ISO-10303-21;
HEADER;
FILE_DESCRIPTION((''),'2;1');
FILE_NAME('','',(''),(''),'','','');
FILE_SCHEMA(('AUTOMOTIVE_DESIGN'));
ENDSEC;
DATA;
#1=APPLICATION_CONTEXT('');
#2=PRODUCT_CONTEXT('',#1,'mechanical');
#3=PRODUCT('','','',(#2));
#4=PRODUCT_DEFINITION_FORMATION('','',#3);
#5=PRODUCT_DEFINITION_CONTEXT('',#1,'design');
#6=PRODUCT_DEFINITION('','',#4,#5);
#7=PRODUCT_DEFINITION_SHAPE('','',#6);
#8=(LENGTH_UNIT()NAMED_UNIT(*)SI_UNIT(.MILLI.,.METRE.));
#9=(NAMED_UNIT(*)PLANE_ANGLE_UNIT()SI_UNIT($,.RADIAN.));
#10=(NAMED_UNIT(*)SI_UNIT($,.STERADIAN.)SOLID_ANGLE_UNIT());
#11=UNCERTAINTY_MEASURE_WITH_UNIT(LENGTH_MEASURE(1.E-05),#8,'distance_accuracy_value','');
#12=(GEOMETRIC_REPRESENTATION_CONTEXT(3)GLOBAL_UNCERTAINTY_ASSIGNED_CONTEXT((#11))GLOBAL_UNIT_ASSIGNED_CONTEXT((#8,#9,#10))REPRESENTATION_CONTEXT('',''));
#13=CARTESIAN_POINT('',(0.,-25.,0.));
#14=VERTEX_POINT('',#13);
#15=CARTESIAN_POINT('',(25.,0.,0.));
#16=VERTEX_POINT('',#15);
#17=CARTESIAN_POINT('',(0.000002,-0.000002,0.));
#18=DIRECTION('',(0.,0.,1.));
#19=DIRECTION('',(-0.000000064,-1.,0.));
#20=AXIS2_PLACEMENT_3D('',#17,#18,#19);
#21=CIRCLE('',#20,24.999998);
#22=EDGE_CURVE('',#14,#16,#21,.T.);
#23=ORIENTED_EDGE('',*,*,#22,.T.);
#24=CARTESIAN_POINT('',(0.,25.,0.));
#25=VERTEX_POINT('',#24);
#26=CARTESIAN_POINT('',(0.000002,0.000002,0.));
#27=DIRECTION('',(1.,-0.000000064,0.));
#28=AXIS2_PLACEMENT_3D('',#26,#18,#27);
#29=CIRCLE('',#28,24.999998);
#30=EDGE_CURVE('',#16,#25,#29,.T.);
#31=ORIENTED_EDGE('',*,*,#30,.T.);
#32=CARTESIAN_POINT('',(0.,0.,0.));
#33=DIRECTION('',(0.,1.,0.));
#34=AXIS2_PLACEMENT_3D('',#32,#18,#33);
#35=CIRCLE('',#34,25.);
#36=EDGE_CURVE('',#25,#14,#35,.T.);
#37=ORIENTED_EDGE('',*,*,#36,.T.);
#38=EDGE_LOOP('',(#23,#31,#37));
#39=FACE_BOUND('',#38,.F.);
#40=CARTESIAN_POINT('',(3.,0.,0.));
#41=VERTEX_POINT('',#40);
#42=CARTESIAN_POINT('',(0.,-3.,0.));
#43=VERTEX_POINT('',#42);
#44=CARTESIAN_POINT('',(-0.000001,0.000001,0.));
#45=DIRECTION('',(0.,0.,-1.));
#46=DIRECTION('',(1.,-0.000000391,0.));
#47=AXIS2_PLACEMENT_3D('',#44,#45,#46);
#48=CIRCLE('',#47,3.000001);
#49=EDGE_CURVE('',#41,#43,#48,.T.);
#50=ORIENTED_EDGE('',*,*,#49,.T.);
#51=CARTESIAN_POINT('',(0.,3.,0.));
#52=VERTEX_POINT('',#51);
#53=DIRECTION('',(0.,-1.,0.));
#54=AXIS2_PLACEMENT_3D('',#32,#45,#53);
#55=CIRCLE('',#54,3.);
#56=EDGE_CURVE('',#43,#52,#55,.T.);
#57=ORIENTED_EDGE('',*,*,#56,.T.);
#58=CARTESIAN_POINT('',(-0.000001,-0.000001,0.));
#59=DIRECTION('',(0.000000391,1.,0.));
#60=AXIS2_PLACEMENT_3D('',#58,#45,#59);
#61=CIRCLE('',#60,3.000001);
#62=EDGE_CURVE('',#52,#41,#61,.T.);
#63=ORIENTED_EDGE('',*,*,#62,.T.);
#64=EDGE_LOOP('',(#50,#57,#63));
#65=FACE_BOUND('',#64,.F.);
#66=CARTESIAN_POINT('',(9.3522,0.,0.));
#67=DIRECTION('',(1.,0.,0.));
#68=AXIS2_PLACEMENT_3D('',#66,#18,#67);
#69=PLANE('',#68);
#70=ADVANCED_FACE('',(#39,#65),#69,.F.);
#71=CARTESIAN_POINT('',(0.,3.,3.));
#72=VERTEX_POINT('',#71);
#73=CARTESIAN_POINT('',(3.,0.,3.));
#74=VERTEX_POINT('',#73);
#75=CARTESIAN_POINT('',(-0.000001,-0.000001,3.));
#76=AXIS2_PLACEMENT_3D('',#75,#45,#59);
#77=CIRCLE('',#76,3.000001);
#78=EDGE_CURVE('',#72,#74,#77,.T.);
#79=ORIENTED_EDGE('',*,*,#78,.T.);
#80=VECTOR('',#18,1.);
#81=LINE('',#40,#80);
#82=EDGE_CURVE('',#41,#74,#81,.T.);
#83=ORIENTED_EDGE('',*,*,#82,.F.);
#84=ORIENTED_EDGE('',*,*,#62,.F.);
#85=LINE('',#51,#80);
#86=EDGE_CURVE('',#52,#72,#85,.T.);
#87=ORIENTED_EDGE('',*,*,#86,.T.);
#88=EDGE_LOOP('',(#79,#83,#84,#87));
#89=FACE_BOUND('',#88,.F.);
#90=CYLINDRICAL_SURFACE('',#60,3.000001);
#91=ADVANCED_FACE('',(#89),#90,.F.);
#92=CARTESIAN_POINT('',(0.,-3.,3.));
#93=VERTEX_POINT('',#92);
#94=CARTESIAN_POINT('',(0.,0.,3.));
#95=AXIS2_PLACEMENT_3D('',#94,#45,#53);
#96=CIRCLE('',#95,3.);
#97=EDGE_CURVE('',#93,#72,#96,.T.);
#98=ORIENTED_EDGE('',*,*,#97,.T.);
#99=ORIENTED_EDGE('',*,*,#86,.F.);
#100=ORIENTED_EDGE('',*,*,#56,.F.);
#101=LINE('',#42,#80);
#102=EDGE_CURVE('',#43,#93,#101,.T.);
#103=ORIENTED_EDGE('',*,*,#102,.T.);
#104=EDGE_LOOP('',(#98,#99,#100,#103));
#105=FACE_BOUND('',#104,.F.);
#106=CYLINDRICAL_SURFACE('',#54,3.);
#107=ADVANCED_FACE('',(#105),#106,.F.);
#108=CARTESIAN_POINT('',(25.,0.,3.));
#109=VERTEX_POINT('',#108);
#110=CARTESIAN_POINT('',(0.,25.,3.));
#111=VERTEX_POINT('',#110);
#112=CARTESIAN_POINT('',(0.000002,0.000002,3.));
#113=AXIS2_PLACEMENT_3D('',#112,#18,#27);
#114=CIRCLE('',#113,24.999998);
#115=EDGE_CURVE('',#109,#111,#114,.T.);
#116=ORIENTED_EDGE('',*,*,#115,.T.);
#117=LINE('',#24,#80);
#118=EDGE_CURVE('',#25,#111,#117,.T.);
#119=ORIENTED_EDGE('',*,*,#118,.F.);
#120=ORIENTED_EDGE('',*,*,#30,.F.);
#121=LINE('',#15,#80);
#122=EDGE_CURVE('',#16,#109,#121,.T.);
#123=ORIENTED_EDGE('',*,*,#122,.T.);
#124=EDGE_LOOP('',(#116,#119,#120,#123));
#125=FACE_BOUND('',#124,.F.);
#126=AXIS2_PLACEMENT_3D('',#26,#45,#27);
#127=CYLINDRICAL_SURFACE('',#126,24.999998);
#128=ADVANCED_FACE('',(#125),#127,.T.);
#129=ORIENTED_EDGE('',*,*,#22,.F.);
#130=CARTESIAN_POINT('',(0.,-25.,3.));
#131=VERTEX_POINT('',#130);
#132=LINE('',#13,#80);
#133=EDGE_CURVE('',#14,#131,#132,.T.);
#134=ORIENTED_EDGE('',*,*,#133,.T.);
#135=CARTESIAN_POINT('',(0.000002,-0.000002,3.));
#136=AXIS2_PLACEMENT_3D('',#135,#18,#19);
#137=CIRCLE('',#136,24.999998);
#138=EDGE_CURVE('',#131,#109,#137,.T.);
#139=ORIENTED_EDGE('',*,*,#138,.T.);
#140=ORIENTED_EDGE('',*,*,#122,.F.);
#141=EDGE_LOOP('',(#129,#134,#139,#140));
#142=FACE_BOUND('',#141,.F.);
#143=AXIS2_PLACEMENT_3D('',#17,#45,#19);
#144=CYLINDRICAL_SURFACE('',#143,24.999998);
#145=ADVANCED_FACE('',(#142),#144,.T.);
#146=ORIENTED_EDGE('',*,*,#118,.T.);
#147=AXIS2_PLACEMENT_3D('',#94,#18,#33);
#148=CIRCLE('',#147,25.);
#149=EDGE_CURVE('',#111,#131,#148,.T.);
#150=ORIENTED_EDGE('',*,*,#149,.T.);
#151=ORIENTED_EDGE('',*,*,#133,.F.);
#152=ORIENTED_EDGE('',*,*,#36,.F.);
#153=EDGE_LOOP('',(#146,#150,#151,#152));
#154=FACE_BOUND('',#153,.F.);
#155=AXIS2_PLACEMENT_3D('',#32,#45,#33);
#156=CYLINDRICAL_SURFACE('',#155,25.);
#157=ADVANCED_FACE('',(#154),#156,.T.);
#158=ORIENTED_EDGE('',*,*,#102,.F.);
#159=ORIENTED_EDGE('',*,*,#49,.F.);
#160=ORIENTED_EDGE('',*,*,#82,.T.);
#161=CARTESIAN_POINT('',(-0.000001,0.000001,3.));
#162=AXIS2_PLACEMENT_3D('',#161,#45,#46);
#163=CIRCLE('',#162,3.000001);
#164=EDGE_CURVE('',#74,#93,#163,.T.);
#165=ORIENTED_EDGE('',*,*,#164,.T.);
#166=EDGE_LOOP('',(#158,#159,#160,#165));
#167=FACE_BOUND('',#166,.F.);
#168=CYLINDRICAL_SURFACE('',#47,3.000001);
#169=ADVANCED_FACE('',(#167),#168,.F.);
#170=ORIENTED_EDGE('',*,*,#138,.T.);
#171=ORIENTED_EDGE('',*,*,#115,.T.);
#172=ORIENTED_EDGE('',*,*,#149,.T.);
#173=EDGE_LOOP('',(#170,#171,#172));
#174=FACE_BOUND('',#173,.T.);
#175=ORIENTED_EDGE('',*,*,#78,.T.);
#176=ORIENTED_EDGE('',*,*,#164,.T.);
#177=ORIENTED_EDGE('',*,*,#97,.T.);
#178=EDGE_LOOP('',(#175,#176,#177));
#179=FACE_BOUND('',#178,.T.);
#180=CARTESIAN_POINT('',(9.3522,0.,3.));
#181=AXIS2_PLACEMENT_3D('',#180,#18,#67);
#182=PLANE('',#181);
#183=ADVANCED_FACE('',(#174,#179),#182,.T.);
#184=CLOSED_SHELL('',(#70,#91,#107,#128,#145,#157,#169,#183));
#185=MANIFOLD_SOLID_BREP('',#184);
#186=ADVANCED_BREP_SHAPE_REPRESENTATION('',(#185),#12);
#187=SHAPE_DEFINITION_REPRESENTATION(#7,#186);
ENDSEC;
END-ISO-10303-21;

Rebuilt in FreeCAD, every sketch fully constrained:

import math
import FreeCAD as App
import Part
import Sketcher

V = App.Vector
Q = App.Units.Quantity

doc = App.newDocument("Part")
body = doc.addObject("PartDesign::Body", "Body")

# Sketch on XY plane
sketch1 = body.newObject("Sketcher::SketchObject", "Sketch")
sketch1.AttachmentSupport = (doc.getObject("XY_Plane"), [""])
sketch1.MapMode = "FlatFace"
sketch1.addGeometry([
    Part.ArcOfCircle(Part.Circle(V(0.000002, 0.000002, 0), V(0, 0, 1), 24.999998), math.radians(-0.000004), math.radians(90.000004)),  # 0
    Part.ArcOfCircle(Part.Circle(V(0, 0, 0), V(0, 0, 1), 25), math.radians(90), math.radians(270)),  # 1
    Part.ArcOfCircle(Part.Circle(V(0.000002, -0.000002, 0), V(0, 0, 1), 24.999998), math.radians(-90.000004), math.radians(0.000004)),  # 2
    Part.ArcOfCircle(Part.Circle(V(-0.000001, -0.000001, 0), V(0, 0, 1), 3.000001), math.radians(0.000022), math.radians(89.999978)),  # 3
    Part.ArcOfCircle(Part.Circle(V(-0.000001, 0.000001, 0), V(0, 0, 1), 3.000001), math.radians(-89.999978), math.radians(-0.000022)),  # 4
    Part.ArcOfCircle(Part.Circle(V(0, 0, 0), V(0, 0, 1), 3), math.radians(90), math.radians(270)),  # 5
], False)
sketch1.addConstraint([
    Sketcher.Constraint("Tangent", 0, 2, 1, 1),
    Sketcher.Constraint("Tangent", 1, 2, 2, 1),
    Sketcher.Constraint("Tangent", 2, 2, 0, 1),
    Sketcher.Constraint("Tangent", 3, 1, 4, 2),
    Sketcher.Constraint("Tangent", 4, 1, 5, 2),
    Sketcher.Constraint("Tangent", 5, 1, 3, 2),
    Sketcher.Constraint("Coincident", 0, 3, -1, 1),
    Sketcher.Constraint("Coincident", 3, 3, -1, 1),
    Sketcher.Constraint("PointOnObject", 0, 2, -2),
    Sketcher.Constraint("PointOnObject", 1, 2, -2),
    Sketcher.Constraint("PointOnObject", 2, 2, -1),
    Sketcher.Constraint("PointOnObject", 3, 1, -1),
    Sketcher.Constraint("PointOnObject", 4, 1, -2),
    Sketcher.Constraint("PointOnObject", 5, 1, -2),
    Sketcher.Constraint("Radius", 0, Q("24.999998 mm")),
    Sketcher.Constraint("Radius", 3, Q("3.000001 mm")),
])
pad1 = body.newObject("PartDesign::Pad", "Pad")
pad1.Profile = sketch1
pad1.Length = 3

doc.recompute()
